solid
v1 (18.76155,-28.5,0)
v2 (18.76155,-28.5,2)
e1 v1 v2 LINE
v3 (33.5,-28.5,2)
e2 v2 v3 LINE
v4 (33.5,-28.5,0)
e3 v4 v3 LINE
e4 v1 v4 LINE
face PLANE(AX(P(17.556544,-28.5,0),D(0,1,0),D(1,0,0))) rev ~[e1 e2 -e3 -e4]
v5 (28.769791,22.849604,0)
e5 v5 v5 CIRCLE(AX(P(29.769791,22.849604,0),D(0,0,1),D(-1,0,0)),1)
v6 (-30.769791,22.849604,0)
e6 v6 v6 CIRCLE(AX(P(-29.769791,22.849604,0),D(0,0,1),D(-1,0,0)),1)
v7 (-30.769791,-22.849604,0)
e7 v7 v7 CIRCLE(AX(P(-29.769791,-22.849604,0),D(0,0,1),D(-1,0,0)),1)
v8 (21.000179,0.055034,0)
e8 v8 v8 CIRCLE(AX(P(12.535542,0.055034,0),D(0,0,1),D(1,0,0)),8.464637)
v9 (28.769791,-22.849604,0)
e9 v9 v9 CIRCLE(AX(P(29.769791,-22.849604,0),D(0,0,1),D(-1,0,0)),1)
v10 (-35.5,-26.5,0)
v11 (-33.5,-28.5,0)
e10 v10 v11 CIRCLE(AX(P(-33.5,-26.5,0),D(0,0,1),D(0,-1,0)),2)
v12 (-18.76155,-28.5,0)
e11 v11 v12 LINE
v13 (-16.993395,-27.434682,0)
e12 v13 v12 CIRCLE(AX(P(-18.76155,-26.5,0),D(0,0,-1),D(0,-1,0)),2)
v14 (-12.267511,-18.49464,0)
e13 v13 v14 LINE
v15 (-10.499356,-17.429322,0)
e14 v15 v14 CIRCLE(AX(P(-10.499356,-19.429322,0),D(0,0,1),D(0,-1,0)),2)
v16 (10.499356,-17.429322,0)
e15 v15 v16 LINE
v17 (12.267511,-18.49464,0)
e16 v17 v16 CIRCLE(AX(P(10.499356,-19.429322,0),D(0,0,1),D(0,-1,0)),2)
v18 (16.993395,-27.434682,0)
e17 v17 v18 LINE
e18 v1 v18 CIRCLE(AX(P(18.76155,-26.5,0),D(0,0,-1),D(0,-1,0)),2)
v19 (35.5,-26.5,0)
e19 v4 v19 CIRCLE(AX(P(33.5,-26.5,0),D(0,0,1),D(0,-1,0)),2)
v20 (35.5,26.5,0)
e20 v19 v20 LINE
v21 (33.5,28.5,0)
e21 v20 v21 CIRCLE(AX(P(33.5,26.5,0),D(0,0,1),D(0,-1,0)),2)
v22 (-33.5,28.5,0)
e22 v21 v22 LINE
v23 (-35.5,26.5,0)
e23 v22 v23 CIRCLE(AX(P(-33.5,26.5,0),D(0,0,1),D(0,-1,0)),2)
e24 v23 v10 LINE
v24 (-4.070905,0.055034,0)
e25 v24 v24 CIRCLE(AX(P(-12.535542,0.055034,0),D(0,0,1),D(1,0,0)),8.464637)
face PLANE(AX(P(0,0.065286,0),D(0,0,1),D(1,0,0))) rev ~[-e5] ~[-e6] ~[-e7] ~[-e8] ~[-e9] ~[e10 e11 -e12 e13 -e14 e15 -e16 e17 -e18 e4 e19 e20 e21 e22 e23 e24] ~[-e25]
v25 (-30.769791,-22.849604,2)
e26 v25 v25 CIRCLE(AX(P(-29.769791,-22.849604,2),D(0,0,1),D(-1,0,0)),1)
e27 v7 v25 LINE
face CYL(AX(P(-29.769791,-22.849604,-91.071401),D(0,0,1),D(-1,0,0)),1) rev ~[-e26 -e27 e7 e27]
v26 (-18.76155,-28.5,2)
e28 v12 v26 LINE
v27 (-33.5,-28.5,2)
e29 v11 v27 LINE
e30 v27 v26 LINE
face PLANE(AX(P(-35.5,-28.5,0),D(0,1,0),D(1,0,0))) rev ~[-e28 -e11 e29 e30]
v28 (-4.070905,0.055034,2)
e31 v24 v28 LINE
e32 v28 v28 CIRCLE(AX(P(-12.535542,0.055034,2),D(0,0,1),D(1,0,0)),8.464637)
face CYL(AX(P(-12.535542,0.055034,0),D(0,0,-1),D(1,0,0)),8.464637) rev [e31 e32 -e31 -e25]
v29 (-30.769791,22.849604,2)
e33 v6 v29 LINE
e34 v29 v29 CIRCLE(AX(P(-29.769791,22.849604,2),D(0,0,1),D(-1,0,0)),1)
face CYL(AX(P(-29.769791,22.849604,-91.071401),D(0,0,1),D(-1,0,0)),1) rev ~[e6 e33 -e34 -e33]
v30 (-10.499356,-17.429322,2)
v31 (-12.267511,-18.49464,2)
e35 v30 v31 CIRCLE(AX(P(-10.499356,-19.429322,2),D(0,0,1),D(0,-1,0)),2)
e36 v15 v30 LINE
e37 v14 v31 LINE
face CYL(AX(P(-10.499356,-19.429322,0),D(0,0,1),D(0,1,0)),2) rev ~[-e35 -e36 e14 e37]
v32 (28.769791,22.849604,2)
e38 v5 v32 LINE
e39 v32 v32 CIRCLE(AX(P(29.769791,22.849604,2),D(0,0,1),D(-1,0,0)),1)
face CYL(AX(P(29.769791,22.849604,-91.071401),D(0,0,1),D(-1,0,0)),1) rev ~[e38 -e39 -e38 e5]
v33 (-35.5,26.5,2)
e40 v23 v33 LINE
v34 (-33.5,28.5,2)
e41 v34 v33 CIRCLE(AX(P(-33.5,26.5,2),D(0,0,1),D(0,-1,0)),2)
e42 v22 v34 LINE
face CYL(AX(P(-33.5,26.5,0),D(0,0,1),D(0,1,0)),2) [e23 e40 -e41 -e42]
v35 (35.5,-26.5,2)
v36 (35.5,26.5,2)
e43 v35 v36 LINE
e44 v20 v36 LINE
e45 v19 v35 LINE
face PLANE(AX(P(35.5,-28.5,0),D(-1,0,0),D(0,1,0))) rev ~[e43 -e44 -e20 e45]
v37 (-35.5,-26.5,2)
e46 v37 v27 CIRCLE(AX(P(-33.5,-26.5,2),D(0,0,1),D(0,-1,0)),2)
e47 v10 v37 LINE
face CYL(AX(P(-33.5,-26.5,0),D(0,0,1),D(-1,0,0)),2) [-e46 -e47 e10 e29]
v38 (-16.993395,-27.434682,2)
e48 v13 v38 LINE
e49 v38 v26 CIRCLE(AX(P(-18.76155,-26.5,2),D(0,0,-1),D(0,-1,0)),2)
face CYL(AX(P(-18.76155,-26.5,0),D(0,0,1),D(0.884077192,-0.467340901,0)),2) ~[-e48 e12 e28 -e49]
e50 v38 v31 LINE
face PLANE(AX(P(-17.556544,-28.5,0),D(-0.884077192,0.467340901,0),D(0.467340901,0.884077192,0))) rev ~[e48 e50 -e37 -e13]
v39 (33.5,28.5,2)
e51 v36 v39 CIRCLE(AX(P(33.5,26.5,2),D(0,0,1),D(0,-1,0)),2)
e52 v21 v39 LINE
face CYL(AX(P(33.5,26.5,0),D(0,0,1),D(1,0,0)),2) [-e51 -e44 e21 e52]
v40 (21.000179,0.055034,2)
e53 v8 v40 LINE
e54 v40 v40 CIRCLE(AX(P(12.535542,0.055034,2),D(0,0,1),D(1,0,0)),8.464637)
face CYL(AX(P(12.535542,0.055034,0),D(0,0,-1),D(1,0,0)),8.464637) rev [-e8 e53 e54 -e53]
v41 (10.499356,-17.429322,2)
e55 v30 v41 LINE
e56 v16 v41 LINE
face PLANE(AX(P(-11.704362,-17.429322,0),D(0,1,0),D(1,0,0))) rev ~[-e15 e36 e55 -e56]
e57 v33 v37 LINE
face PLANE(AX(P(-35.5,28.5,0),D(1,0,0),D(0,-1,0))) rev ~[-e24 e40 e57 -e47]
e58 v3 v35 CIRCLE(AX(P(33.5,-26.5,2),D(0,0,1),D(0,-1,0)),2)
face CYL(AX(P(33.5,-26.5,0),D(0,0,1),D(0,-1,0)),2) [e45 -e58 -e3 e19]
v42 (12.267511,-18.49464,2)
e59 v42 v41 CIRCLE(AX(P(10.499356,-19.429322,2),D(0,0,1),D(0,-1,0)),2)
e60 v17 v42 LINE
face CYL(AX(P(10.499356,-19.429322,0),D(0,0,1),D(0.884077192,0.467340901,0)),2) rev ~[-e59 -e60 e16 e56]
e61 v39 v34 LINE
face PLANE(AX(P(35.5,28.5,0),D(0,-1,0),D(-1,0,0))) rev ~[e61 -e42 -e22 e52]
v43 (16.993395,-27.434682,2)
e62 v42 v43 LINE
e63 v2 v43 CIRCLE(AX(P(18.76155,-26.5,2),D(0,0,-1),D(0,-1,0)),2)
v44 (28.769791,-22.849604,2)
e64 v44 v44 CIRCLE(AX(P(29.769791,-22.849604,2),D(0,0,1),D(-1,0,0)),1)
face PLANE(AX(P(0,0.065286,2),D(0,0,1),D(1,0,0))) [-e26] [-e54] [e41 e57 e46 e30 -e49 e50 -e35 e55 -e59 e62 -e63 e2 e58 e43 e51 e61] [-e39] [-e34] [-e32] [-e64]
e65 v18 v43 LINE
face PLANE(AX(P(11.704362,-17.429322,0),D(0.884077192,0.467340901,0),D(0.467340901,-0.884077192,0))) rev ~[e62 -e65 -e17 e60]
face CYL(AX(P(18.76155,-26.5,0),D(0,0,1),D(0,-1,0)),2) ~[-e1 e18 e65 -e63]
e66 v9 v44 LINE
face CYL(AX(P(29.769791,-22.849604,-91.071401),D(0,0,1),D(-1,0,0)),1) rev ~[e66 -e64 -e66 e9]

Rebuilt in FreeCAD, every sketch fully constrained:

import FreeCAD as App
import Part
import Sketcher

V = App.Vector
Q = App.Units.Quantity


def edges_at(feature, points):
    """Names of the edges that pass closest to the given points."""
    edges = feature.Shape.Edges
    near = lambda p: min(range(len(edges)), key=lambda i: edges[i].distToShape(Part.Vertex(*p))[0])
    return sorted({f"Edge{near(p) + 1}" for p in points})

doc = App.newDocument("Part")
body = doc.addObject("PartDesign::Body", "Body")

# Sketch on XY plane
sketch1 = body.newObject("Sketcher::SketchObject", "Sketch")
sketch1.AttachmentSupport = (doc.getObject("XY_Plane"), [""])
sketch1.MapMode = "FlatFace"
sketch1.addGeometry(Part.LineSegment(V(18, -28, 0), V(36, -28, 0)), False)
sketch1.addGeometry(Part.LineSegment(V(36, -28, 0), V(36, 28, 0)), False)
sketch1.addGeometry(Part.LineSegment(V(36, 28, 0), V(-36, 28, 0)), False)
sketch1.addGeometry(Part.LineSegment(V(-36, 28, 0), V(-36, -28, 0)), False)
sketch1.addGeometry(Part.LineSegment(V(-36, -28, 0), V(-18, -28, 0)), False)
sketch1.addGeometry(Part.LineSegment(V(-18, -28, 0), V(-12, -17, 0)), False)
sketch1.addGeometry(Part.LineSegment(V(-12, -17, 0), V(12, -17, 0)), False)
sketch1.addGeometry(Part.LineSegment(V(12, -17, 0), V(18, -28, 0)), False)
sketch1.addGeometry(Part.Circle(V(-13, 0, 0), V(0, 0, 1), 8), False)
sketch1.addGeometry(Part.Circle(V(13, 0, 0), V(0, 0, 1), 8), False)
sketch1.addConstraint(Sketcher.Constraint("Coincident", 0, 2, 1, 1))
sketch1.addConstraint(Sketcher.Constraint("Coincident", 1, 2, 2, 1))
sketch1.addConstraint(Sketcher.Constraint("Coincident", 2, 2, 3, 1))
sketch1.addConstraint(Sketcher.Constraint("Coincident", 3, 2, 4, 1))
sketch1.addConstraint(Sketcher.Constraint("Coincident", 4, 2, 5, 1))
sketch1.addConstraint(Sketcher.Constraint("Coincident", 5, 2, 6, 1))
sketch1.addConstraint(Sketcher.Constraint("Coincident", 6, 2, 7, 1))
sketch1.addConstraint(Sketcher.Constraint("Coincident", 7, 2, 0, 1))
sketch1.addConstraint(Sketcher.Constraint("Horizontal", 0))
sketch1.addConstraint(Sketcher.Constraint("Vertical", 1))
sketch1.addConstraint(Sketcher.Constraint("Horizontal", 2))
sketch1.addConstraint(Sketcher.Constraint("Vertical", 3))
sketch1.addConstraint(Sketcher.Constraint("Horizontal", 4))
sketch1.addConstraint(Sketcher.Constraint("Horizontal", 6))
sketch1.addConstraint(Sketcher.Constraint("Equal", 8, 9))
sketch1.addConstraint(Sketcher.Constraint("Symmetric", 0, 2, 2, 2, -1, 1))
sketch1.addConstraint(Sketcher.Constraint("Symmetric", 8, 3, 9, 3, -2))
sketch1.addConstraint(Sketcher.Constraint("Symmetric", 4, 2, 7, 2, -2))
sketch1.addConstraint(Sketcher.Constraint("Equal", 5, 7))
sketch1.addConstraint(Sketcher.Constraint("DistanceX", 2, 2, 2, 1, Q("71 mm")))
sketch1.addConstraint(Sketcher.Constraint("DistanceY", 1, 1, 1, 2, Q("57 mm")))
sketch1.addConstraint(Sketcher.Constraint("Diameter", 8, Q("16.929274 mm")))
sketch1.addConstraint(Sketcher.Constraint("DistanceX", 4, 2, 8, 3, Q("5.021002 mm")))
sketch1.addConstraint(Sketcher.Constraint("DistanceX", 0, 1, 0, 2, Q("17.943456 mm")))
sketch1.addConstraint(Sketcher.Constraint("DistanceX", 6, 1, 6, 2, Q("23.408724 mm")))
sketch1.addConstraint(Sketcher.Constraint("DistanceY", 5, 2, -1, 1, Q("17.429322 mm")))
sketch1.addConstraint(Sketcher.Constraint("DistanceY", -1, 1, 8, 3, Q("0.055034 mm")))
pad1 = body.newObject("PartDesign::Pad", "Pad")
pad1.Profile = sketch1
pad1.Length = 2
doc.recompute()

fillet = body.newObject("PartDesign::Fillet", "Fillet")
fillet.Base = (pad1, edges_at(pad1, [
    (-35.5, 28.5, 1),
    (-35.5, -28.5, 1),
    (-17.557, -28.5, 1),
    (-11.704, -17.429, 1),
    (11.704, -17.429, 1),
    (17.557, -28.5, 1),
    (35.5, -28.5, 1),
    (35.5, 28.5, 1),
]))
fillet.Radius = 2

# Sketch on XY plane
sketch2 = body.newObject("Sketcher::SketchObject", "Sketch001")
sketch2.AttachmentSupport = (doc.getObject("XY_Plane"), [""])
sketch2.MapMode = "FlatFace"
sketch2.addGeometry(Part.Circle(V(-29.8, -22.8, 0), V(0, 0, 1), 1), False)
sketch2.addGeometry(Part.Circle(V(29.8, -22.8, 0), V(0, 0, 1), 1), False)
sketch2.addGeometry(Part.Circle(V(29.8, 22.8, 0), V(0, 0, 1), 1), False)
sketch2.addGeometry(Part.Circle(V(-29.8, 22.8, 0), V(0, 0, 1), 1), False)
sketch2.addConstraint(Sketcher.Constraint("Equal", 0, 1))
sketch2.addConstraint(Sketcher.Constraint("Equal", 1, 2))
sketch2.addConstraint(Sketcher.Constraint("Equal", 2, 3))
sketch2.addConstraint(Sketcher.Constraint("Symmetric", 0, 3, 2, 3, -1, 1))
sketch2.addConstraint(Sketcher.Constraint("Symmetric", 1, 3, 3, 3, -1, 1))
sketch2.addConstraint(Sketcher.Constraint("Symmetric", 0, 3, 1, 3, -2))
sketch2.addConstraint(Sketcher.Constraint("Diameter", 0, Q("2 mm")))
sketch2.addConstraint(Sketcher.Constraint("DistanceX", 0, 3, -1, 1, Q("29.769791 mm")))
sketch2.addConstraint(Sketcher.Constraint("DistanceY", 0, 3, -1, 1, Q("22.849604 mm")))
doc.recompute()
hole = body.newObject("PartDesign::Hole", "Hole")
hole.Profile = sketch2
hole.ThreadType = "None"
hole.Diameter = 2
hole.DepthType = "ThroughAll"
hole.Reversed = True

doc.recompute()
